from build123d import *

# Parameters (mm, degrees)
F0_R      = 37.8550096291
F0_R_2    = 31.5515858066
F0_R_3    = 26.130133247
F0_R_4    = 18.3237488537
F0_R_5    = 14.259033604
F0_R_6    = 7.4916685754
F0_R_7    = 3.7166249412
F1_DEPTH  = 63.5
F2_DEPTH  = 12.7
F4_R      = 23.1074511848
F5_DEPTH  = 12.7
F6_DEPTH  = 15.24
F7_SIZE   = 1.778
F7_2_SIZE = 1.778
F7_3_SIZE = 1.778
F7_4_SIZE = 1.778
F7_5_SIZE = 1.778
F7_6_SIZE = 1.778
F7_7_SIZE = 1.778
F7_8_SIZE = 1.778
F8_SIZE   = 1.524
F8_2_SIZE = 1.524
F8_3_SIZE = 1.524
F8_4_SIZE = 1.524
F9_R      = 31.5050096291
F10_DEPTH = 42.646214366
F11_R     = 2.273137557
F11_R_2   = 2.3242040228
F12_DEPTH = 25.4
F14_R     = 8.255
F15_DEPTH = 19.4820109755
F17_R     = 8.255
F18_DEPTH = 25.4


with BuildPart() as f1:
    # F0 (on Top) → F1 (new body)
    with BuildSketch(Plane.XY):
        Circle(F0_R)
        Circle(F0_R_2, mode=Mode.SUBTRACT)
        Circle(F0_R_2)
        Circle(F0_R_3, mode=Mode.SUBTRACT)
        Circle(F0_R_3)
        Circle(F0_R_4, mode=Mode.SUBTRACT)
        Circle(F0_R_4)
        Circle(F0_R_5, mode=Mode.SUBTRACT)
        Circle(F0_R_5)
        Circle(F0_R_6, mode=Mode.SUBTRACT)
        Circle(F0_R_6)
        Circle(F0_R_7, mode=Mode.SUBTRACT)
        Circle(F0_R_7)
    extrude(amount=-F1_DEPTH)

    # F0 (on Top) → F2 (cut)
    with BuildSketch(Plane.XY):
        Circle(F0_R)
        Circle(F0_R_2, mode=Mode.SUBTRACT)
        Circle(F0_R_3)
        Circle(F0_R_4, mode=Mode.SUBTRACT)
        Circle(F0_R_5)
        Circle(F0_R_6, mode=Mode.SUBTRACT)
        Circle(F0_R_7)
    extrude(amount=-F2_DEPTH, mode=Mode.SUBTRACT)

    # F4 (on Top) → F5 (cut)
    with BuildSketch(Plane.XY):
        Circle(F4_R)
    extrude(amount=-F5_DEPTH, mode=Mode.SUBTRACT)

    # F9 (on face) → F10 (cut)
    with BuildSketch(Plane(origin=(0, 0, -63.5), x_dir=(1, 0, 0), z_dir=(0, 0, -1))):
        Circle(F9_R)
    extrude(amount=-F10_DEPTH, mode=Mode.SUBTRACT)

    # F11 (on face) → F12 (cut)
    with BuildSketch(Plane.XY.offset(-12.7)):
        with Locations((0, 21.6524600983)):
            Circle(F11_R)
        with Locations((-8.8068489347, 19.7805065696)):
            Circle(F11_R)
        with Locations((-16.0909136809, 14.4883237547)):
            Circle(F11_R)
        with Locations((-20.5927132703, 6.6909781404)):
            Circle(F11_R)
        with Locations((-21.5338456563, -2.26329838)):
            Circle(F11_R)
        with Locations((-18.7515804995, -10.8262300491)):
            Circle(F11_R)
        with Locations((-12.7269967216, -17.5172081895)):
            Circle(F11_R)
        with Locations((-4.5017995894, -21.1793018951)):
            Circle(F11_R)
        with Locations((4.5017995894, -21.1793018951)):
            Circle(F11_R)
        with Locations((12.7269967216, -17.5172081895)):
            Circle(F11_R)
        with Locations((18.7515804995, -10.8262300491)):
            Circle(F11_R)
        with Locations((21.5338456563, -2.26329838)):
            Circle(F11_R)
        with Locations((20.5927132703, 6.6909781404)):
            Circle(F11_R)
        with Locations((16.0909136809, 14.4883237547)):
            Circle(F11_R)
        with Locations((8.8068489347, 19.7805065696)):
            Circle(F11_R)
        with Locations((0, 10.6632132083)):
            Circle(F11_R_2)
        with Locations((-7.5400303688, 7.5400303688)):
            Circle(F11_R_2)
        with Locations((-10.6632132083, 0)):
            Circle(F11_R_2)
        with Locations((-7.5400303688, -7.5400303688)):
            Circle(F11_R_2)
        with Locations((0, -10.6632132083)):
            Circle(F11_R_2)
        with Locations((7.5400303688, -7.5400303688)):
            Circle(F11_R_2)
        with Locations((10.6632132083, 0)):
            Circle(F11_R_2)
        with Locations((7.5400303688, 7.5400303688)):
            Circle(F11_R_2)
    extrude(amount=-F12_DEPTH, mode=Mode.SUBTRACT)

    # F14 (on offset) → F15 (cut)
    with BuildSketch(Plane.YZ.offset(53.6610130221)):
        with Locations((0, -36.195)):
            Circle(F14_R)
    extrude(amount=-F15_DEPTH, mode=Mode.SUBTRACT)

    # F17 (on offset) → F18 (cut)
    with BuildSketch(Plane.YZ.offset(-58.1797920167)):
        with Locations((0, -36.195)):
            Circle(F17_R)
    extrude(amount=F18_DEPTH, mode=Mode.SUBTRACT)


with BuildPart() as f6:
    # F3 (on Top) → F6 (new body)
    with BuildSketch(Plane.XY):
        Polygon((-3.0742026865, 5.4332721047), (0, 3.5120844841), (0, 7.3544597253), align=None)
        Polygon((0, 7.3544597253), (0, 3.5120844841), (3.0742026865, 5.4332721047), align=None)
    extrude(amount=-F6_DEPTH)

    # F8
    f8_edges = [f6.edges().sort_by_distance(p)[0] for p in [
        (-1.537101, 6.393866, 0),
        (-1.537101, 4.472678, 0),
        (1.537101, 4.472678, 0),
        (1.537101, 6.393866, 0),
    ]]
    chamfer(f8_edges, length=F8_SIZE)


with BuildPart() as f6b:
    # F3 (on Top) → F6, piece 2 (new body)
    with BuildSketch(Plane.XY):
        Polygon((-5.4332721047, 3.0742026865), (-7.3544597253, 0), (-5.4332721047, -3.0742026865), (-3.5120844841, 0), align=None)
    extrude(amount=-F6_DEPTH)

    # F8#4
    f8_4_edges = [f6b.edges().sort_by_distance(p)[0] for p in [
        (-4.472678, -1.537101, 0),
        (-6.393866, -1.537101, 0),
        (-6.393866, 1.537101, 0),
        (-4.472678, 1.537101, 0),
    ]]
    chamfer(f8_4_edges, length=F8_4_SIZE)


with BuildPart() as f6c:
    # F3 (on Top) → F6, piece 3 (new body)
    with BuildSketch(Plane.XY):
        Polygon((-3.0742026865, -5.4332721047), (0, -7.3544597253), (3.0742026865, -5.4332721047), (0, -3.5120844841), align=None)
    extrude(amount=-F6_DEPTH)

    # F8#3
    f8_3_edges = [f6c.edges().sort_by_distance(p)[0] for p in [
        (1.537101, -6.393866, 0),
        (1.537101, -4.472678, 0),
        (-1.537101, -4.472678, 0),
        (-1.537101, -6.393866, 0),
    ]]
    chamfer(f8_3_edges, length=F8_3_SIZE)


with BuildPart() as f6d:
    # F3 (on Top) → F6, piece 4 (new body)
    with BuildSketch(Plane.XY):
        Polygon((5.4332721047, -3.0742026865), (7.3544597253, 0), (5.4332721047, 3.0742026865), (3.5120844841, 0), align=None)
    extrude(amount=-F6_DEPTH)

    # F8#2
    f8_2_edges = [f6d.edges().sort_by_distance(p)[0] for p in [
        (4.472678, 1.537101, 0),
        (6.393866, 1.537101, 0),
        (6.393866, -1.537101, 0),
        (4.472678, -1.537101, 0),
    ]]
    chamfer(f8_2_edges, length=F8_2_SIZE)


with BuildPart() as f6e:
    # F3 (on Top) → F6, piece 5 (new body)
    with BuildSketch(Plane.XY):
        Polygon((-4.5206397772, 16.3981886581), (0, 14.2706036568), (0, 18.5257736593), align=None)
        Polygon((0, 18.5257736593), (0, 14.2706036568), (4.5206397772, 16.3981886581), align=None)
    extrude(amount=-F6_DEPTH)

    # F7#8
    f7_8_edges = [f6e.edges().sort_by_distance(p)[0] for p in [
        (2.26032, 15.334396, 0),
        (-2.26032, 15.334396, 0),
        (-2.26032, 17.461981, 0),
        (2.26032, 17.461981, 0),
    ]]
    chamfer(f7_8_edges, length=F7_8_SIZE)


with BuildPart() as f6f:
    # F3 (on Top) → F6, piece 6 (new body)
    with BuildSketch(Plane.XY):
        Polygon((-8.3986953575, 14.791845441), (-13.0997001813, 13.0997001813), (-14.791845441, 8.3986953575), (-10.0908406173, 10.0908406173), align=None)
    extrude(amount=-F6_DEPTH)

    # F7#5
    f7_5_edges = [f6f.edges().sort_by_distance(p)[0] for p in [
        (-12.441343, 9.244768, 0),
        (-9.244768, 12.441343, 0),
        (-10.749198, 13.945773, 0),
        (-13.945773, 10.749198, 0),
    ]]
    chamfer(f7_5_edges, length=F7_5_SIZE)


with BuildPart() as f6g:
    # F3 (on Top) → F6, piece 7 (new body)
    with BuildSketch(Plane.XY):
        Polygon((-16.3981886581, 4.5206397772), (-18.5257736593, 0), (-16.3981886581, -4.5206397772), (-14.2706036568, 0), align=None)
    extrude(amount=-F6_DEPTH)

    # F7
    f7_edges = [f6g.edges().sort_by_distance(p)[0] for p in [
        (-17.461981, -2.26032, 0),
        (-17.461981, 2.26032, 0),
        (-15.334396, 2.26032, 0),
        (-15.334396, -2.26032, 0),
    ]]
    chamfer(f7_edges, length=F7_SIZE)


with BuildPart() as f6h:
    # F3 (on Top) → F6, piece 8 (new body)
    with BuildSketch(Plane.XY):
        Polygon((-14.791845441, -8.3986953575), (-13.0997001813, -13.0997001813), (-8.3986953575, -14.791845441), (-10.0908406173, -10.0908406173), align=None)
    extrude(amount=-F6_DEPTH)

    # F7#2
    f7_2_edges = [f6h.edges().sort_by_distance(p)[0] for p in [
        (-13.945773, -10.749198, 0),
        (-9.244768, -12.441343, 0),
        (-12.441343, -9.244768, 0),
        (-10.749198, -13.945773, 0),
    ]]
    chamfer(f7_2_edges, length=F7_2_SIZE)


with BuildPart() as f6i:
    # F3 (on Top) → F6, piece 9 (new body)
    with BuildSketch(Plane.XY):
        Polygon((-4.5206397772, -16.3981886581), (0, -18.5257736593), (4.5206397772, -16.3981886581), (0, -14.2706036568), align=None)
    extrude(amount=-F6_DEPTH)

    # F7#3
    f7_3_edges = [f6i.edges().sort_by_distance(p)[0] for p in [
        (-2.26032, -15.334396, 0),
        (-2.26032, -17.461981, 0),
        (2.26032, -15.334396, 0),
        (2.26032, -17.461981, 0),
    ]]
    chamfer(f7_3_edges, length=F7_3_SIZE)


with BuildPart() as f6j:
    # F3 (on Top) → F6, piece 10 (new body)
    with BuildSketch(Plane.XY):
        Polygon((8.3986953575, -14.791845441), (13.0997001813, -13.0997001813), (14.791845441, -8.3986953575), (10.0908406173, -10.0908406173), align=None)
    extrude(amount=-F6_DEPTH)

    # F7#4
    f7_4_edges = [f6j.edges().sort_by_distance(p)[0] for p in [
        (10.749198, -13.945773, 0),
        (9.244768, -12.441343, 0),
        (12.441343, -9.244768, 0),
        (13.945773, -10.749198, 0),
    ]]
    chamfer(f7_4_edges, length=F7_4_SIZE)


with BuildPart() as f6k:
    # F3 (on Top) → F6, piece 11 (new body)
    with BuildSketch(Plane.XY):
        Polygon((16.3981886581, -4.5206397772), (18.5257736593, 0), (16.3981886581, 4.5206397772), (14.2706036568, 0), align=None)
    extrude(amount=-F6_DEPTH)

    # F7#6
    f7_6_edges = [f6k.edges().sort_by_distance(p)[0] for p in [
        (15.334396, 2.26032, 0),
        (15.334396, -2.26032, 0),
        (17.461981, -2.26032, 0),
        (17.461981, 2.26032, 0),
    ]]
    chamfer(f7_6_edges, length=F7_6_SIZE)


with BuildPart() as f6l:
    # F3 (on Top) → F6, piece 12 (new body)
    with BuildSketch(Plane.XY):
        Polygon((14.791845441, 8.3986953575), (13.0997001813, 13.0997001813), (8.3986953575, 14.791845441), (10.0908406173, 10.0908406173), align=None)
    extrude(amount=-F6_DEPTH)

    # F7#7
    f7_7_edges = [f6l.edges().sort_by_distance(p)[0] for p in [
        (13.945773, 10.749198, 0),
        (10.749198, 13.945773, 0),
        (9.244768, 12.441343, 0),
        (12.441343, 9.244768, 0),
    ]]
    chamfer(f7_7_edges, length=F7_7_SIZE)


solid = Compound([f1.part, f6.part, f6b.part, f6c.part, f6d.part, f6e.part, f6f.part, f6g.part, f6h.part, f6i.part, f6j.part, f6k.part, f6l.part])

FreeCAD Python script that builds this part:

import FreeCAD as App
import Part
import Sketcher
Q = App.Units.Quantity


def edges_at(feature, points):
    """Names of the edges that pass closest to the given points."""
    edges = feature.Shape.Edges
    near = lambda p: min(range(len(edges)), key=lambda i: edges[i].distToShape(Part.Vertex(*p))[0])
    return sorted({f"Edge{near(p) + 1}" for p in points})

doc = App.newDocument("Part")
body = doc.addObject("PartDesign::Body", "Body")

sketch1 = body.newObject("Sketcher::SketchObject", "Sketch")
sketch1.AttachmentSupport = (doc.getObject("XY_Plane"), [""])
sketch1.MapMode = "FlatFace"
sketch1.addGeometry(Part.Circle(App.Vector(0, 0, 0), App.Vector(0, 0, 1), 37.85501), False)
sketch1.addConstraint([
    Sketcher.Constraint("Coincident", 0, 3, -1, 1),
    Sketcher.Constraint("Diameter", 0, Q("75.710019 mm")),
])
pad1 = body.newObject("PartDesign::Pad", "Pad")
pad1.Profile = sketch1
pad1.Length = Q("2.5 in")
pad1.Reversed = True

sketch2 = body.newObject("Sketcher::SketchObject", "Sketch001")
sketch2.AttachmentSupport = (doc.getObject("XY_Plane"), [""])
sketch2.MapMode = "FlatFace"
sketch2.addGeometry([
    Part.Circle(App.Vector(0, 0, 0), App.Vector(0, 0, 1), 37.85501),
    Part.Circle(App.Vector(0, 0, 0), App.Vector(0, 0, 1), 31.551586),
    Part.Circle(App.Vector(0, 0, 0), App.Vector(0, 0, 1), 26.130133),
    Part.Circle(App.Vector(0, 0, 0), App.Vector(0, 0, 1), 18.323749),
    Part.Circle(App.Vector(0, 0, 0), App.Vector(0, 0, 1), 14.259034),
    Part.Circle(App.Vector(0, 0, 0), App.Vector(0, 0, 1), 7.491669),
    Part.Circle(App.Vector(0, 0, 0), App.Vector(0, 0, 1), 3.716625),
], False)
sketch2.addConstraint([
    Sketcher.Constraint("Coincident", 0, 3, -1, 1),
    Sketcher.Constraint("Coincident", 1, 3, -1, 1),
    Sketcher.Constraint("Coincident", 2, 3, -1, 1),
    Sketcher.Constraint("Coincident", 3, 3, -1, 1),
    Sketcher.Constraint("Coincident", 4, 3, -1, 1),
    Sketcher.Constraint("Coincident", 5, 3, -1, 1),
    Sketcher.Constraint("Coincident", 6, 3, -1, 1),
    Sketcher.Constraint("Diameter", 0, Q("75.710019 mm")),
    Sketcher.Constraint("Diameter", 1, Q("63.103172 mm")),
    Sketcher.Constraint("Diameter", 6, Q("7.43325 mm")),
    Sketcher.Constraint("Diameter", 2, Q("52.260266 mm")),
    Sketcher.Constraint("Diameter", 3, Q("36.647498 mm")),
    Sketcher.Constraint("Diameter", 4, Q("28.518067 mm")),
    Sketcher.Constraint("Diameter", 5, Q("14.983337 mm")),
])
pocket1 = body.newObject("PartDesign::Pocket", "Pocket")
pocket1.Profile = sketch2
pocket1.Length = Q("0.5 in")

sketch3 = body.newObject("Sketcher::SketchObject", "Sketch002")
sketch3.AttachmentSupport = (doc.getObject("XY_Plane"), [""])
sketch3.MapMode = "FlatFace"
sketch3.addGeometry(Part.Circle(App.Vector(0, 0, 0), App.Vector(0, 0, 1), 23.107451), False)
sketch3.addConstraint([
    Sketcher.Constraint("Coincident", 0, 3, -1, 1),
    Sketcher.Constraint("Diameter", 0, Q("46.214902 mm")),
])
pocket2 = body.newObject("PartDesign::Pocket", "Pocket001")
pocket2.Profile = sketch3
pocket2.Length = Q("0.5 in")

sketch4 = body.newObject("Sketcher::SketchObject", "Sketch003")
sketch4.AttachmentSupport = (doc.getObject("XY_Plane"), [""])
sketch4.MapMode = "FlatFace"
sketch4.AttachmentOffset = App.Placement(App.Vector(0, 0, -2.5 * 25.4), App.Rotation())
sketch4.addGeometry(Part.Circle(App.Vector(0, 0, 0), App.Vector(0, 0, 1), 31.50501), False)
sketch4.addConstraint([
    Sketcher.Constraint("Coincident", 0, 3, -1, 1),
    Sketcher.Constraint("Diameter", 0, Q("63.010019 mm")),
])
pocket3 = body.newObject("PartDesign::Pocket", "Pocket002")
pocket3.Profile = sketch4
pocket3.Length = 42.646214
pocket3.Reversed = True

sketch5 = body.newObject("Sketcher::SketchObject", "Sketch004")
sketch5.AttachmentSupport = (doc.getObject("XY_Plane"), [""])
sketch5.MapMode = "FlatFace"
sketch5.AttachmentOffset = App.Placement(App.Vector(0, 0, -0.5 * 25.4), App.Rotation())
sketch5.addGeometry([
    Part.Circle(App.Vector(0, 21.65246, 0), App.Vector(0, 0, 1), 2.273138),
    Part.Circle(App.Vector(-8.806849, 19.780507, 0), App.Vector(0, 0, 1), 2.273138),
    Part.Circle(App.Vector(-16.090914, 14.488324, 0), App.Vector(0, 0, 1), 2.273138),
    Part.Circle(App.Vector(-20.592713, 6.690978, 0), App.Vector(0, 0, 1), 2.273138),
    Part.Circle(App.Vector(-21.533846, -2.263298, 0), App.Vector(0, 0, 1), 2.273138),
    Part.Circle(App.Vector(-18.75158, -10.82623, 0), App.Vector(0, 0, 1), 2.273138),
    Part.Circle(App.Vector(-12.726997, -17.517208, 0), App.Vector(0, 0, 1), 2.273138),
    Part.Circle(App.Vector(-4.5018, -21.179302, 0), App.Vector(0, 0, 1), 2.273138),
    Part.Circle(App.Vector(4.5018, -21.179302, 0), App.Vector(0, 0, 1), 2.273138),
    Part.Circle(App.Vector(12.726997, -17.517208, 0), App.Vector(0, 0, 1), 2.273138),
    Part.Circle(App.Vector(18.75158, -10.82623, 0), App.Vector(0, 0, 1), 2.273138),
    Part.Circle(App.Vector(21.533846, -2.263298, 0), App.Vector(0, 0, 1), 2.273138),
    Part.Circle(App.Vector(20.592713, 6.690978, 0), App.Vector(0, 0, 1), 2.273138),
    Part.Circle(App.Vector(16.090914, 14.488324, 0), App.Vector(0, 0, 1), 2.273138),
    Part.Circle(App.Vector(8.806849, 19.780507, 0), App.Vector(0, 0, 1), 2.273138),
    Part.Circle(App.Vector(0, 10.663213, 0), App.Vector(0, 0, 1), 2.324204),
    Part.Circle(App.Vector(-7.54003, 7.54003, 0), App.Vector(0, 0, 1), 2.324204),
    Part.Circle(App.Vector(-10.663213, 0, 0), App.Vector(0, 0, 1), 2.324204),
    Part.Circle(App.Vector(-7.54003, -7.54003, 0), App.Vector(0, 0, 1), 2.324204),
    Part.Circle(App.Vector(0, -10.663213, 0), App.Vector(0, 0, 1), 2.324204),
    Part.Circle(App.Vector(7.54003, -7.54003, 0), App.Vector(0, 0, 1), 2.324204),
    Part.Circle(App.Vector(10.663213, 0, 0), App.Vector(0, 0, 1), 2.324204),
    Part.Circle(App.Vector(7.54003, 7.54003, 0), App.Vector(0, 0, 1), 2.324204),
], False)
sketch5.addConstraint([
    Sketcher.Constraint("Equal", 0, 1),
    Sketcher.Constraint("Equal", 1, 2),
    Sketcher.Constraint("Equal", 2, 3),
    Sketcher.Constraint("Equal", 3, 4),
    Sketcher.Constraint("Equal", 4, 5),
    Sketcher.Constraint("Equal", 5, 6),
    Sketcher.Constraint("Equal", 6, 7),
    Sketcher.Constraint("Equal", 7, 8),
    Sketcher.Constraint("Equal", 8, 9),
    Sketcher.Constraint("Equal", 9, 10),
    Sketcher.Constraint("Equal", 10, 11),
    Sketcher.Constraint("Equal", 11, 12),
    Sketcher.Constraint("Equal", 12, 13),
    Sketcher.Constraint("Equal", 13, 14),
    Sketcher.Constraint("Equal", 15, 16),
    Sketcher.Constraint("Equal", 16, 17),
    Sketcher.Constraint("Equal", 17, 18),
    Sketcher.Constraint("Equal", 18, 19),
    Sketcher.Constraint("Equal", 19, 20),
    Sketcher.Constraint("Equal", 20, 21),
    Sketcher.Constraint("Equal", 21, 22),
    Sketcher.Constraint("Symmetric", 15, 3, 19, 3, -1, 1),
    Sketcher.Constraint("Symmetric", 16, 3, 20, 3, -1, 1),
    Sketcher.Constraint("Symmetric", 17, 3, 21, 3, -1, 1),
    Sketcher.Constraint("Symmetric", 18, 3, 22, 3, -1, 1),
    Sketcher.Constraint("Symmetric", 7, 3, 8, 3, -2),
    Sketcher.Constraint("Symmetric", 6, 3, 9, 3, -2),
    Sketcher.Constraint("Symmetric", 5, 3, 10, 3, -2),
    Sketcher.Constraint("Symmetric", 4, 3, 11, 3, -2),
    Sketcher.Constraint("Symmetric", 3, 3, 12, 3, -2),
    Sketcher.Constraint("Symmetric", 2, 3, 13, 3, -2),
    Sketcher.Constraint("Symmetric", 1, 3, 14, 3, -2),
    Sketcher.Constraint("Symmetric", 18, 3, 20, 3, -2),
    Sketcher.Constraint("PointOnObject", 0, 3, -2),
    Sketcher.Constraint("PointOnObject", 15, 3, -2),
    Sketcher.Constraint("PointOnObject", 17, 3, -1),
    Sketcher.Constraint("Diameter", 15, Q("4.648408 mm")),
    Sketcher.Constraint("Diameter", 0, Q("4.546275 mm")),
    Sketcher.Constraint("DistanceY", 4, 3, -1, 1, Q("2.263298 mm")),
    Sketcher.Constraint("DistanceX", 7, 3, -1, 1, Q("4.5018 mm")),
    Sketcher.Constraint("DistanceY", 7, 3, -1, 1, Q("21.179302 mm")),
    Sketcher.Constraint("DistanceX", 3, 3, 2, 3, Q("4.5018 mm")),
    Sketcher.Constraint("DistanceX", 3, 3, 17, 3, Q("9.9295 mm")),
    Sketcher.Constraint("DistanceY", 5, 3, 18, 3, Q("3.2862 mm")),
    Sketcher.Constraint("DistanceY", -1, 1, 0, 3, Q("21.65246 mm")),
    Sketcher.Constraint("DistanceX", 1, 3, -1, 1, Q("8.806849 mm")),
    Sketcher.Constraint("DistanceY", -1, 1, 3, 3, Q("6.690978 mm")),
    Sketcher.Constraint("DistanceX", 5, 3, -1, 1, Q("18.75158 mm")),
    Sketcher.Constraint("DistanceY", 5, 3, -1, 1, Q("10.82623 mm")),
    Sketcher.Constraint("DistanceY", 6, 3, -1, 1, Q("17.517208 mm")),
    Sketcher.Constraint("DistanceX", 16, 3, -1, 1, Q("7.54003 mm")),
    Sketcher.Constraint("DistanceY", 3, 3, 1, 3, Q("13.089528 mm")),
    Sketcher.Constraint("DistanceX", 4, 3, 2, 3, Q("5.442932 mm")),
    Sketcher.Constraint("DistanceX", 4, 3, 6, 3, Q("8.806849 mm")),
    Sketcher.Constraint("DistanceY", 6, 3, 2, 3, Q("32.005532 mm")),
    Sketcher.Constraint("DistanceY", 15, 3, 2, 3, Q("3.825111 mm")),
    Sketcher.Constraint("DistanceX", 2, 3, -1, 1, Q("16.090914 mm")),
])
pocket4 = body.newObject("PartDesign::Pocket", "Pocket003")
pocket4.Profile = sketch5
pocket4.Length = Q("1 in")

sketch6 = body.newObject("Sketcher::SketchObject", "Sketch005")
sketch6.AttachmentSupport = (doc.getObject("YZ_Plane"), [""])
sketch6.MapMode = "FlatFace"
sketch6.AttachmentOffset = App.Placement(App.Vector(0, 0, 53.661013), App.Rotation())
sketch6.addGeometry(Part.Circle(App.Vector(0, -36.195, 0), App.Vector(0, 0, 1), 8.255), False)
sketch6.addConstraint([
    Sketcher.Constraint("PointOnObject", 0, 3, -2),
    Sketcher.Constraint("Diameter", 0, Q("0.65 in")),
    Sketcher.Constraint("DistanceY", 0, 3, -1, 1, Q("1.425 in")),
])
pocket5 = body.newObject("PartDesign::Pocket", "Pocket004")
pocket5.Profile = sketch6
pocket5.Length = 19.482011

sketch7 = body.newObject("Sketcher::SketchObject", "Sketch006")
sketch7.AttachmentSupport = (doc.getObject("YZ_Plane"), [""])
sketch7.MapMode = "FlatFace"
sketch7.AttachmentOffset = App.Placement(App.Vector(0, 0, -58.179792), App.Rotation())
sketch7.addGeometry(Part.Circle(App.Vector(0, -36.195, 0), App.Vector(0, 0, 1), 8.255), False)
sketch7.addConstraint([
    Sketcher.Constraint("PointOnObject", 0, 3, -2),
    Sketcher.Constraint("Diameter", 0, Q("0.65 in")),
    Sketcher.Constraint("DistanceY", 0, 3, -1, 1, Q("1.425 in")),
])
pocket6 = body.newObject("PartDesign::Pocket", "Pocket005")
pocket6.Profile = sketch7
pocket6.Length = Q("1 in")
pocket6.Reversed = True
body2 = doc.addObject("PartDesign::Body", "Body001")

sketch8 = body2.newObject("Sketcher::SketchObject", "Sketch007")
sketch8.AttachmentSupport = (doc.getObject("XY_Plane001"), [""])
sketch8.MapMode = "FlatFace"
sketch8.addGeometry([
    Part.LineSegment(App.Vector(-3.074203, 5.433272, 0), App.Vector(0, 3.512084, 0)),
    Part.LineSegment(App.Vector(0, 3.512084, 0), App.Vector(3.074203, 5.433272, 0)),
    Part.LineSegment(App.Vector(3.074203, 5.433272, 0), App.Vector(0, 7.35446, 0)),
    Part.LineSegment(App.Vector(0, 7.35446, 0), App.Vector(-3.074203, 5.433272, 0)),
], False)
sketch8.addConstraint([
    Sketcher.Constraint("Coincident", 0, 2, 1, 1),
    Sketcher.Constraint("Coincident", 1, 2, 2, 1),
    Sketcher.Constraint("Coincident", 2, 2, 3, 1),
    Sketcher.Constraint("Coincident", 3, 2, 0, 1),
    Sketcher.Constraint("Symmetric", 1, 2, 3, 2, -2),
    Sketcher.Constraint("PointOnObject", 0, 2, -2),
    Sketcher.Constraint("PointOnObject", 2, 2, -2),
    Sketcher.Constraint("Parallel", 0, 2),
    Sketcher.Constraint("DistanceY", -1, 1, 2, 2, Q("7.35446 mm")),
    Sketcher.Constraint("Distance", 0, Q("3.625146 mm")),
    Sketcher.Constraint("DistanceY", -1, 1, 0, 2, Q("3.512084 mm")),
])
pad2 = body2.newObject("PartDesign::Pad", "Pad001")
pad2.Profile = sketch8
pad2.Length = Q("0.6 in")
pad2.Reversed = True
doc.recompute()

chamfer = body2.newObject("PartDesign::Chamfer", "Chamfer")
chamfer.Base = (pad2, edges_at(pad2, [
    (-1.537, 6.394, 0),
    (-1.537, 4.473, 0),
    (1.537, 4.473, 0),
    (1.537, 6.394, 0),
]))
chamfer.Size = Q("0.06 in")
body3 = doc.addObject("PartDesign::Body", "Body002")

sketch9 = body3.newObject("Sketcher::SketchObject", "Sketch008")
sketch9.AttachmentSupport = (doc.getObject("XY_Plane002"), [""])
sketch9.MapMode = "FlatFace"
sketch9.addGeometry([
    Part.LineSegment(App.Vector(-5.433272, 3.074203, 0), App.Vector(-7.35446, 0, 0)),
    Part.LineSegment(App.Vector(-7.35446, 0, 0), App.Vector(-5.433272, -3.074203, 0)),
    Part.LineSegment(App.Vector(-5.433272, -3.074203, 0), App.Vector(-3.512084, 0, 0)),
    Part.LineSegment(App.Vector(-3.512084, 0, 0), App.Vector(-5.433272, 3.074203, 0)),
], False)
sketch9.addConstraint([
    Sketcher.Constraint("Coincident", 0, 2, 1, 1),
    Sketcher.Constraint("Coincident", 1, 2, 2, 1),
    Sketcher.Constraint("Coincident", 2, 2, 3, 1),
    Sketcher.Constraint("Coincident", 3, 2, 0, 1),
    Sketcher.Constraint("Symmetric", 1, 2, 3, 2, -1),
    Sketcher.Constraint("PointOnObject", 0, 2, -1),
    Sketcher.Constraint("PointOnObject", 2, 2, -1),
    Sketcher.Constraint("Parallel", 0, 2),
    Sketcher.Constraint("DistanceX", 0, 2, -1, 1, Q("7.35446 mm")),
    Sketcher.Constraint("Distance", 0, Q("3.625146 mm")),
    Sketcher.Constraint("DistanceX", 1, 2, -1, 1, Q("5.433272 mm")),
])
pad3 = body3.newObject("PartDesign::Pad", "Pad002")
pad3.Profile = sketch9
pad3.Length = Q("0.6 in")
pad3.Reversed = True
doc.recompute()

chamfer2 = body3.newObject("PartDesign::Chamfer", "Chamfer001")
chamfer2.Base = (pad3, edges_at(pad3, [
    (-4.473, -1.537, 0),
    (-6.394, -1.537, 0),
    (-6.394, 1.537, 0),
    (-4.473, 1.537, 0),
]))
chamfer2.Size = Q("0.06 in")
body4 = doc.addObject("PartDesign::Body", "Body003")

sketch10 = body4.newObject("Sketcher::SketchObject", "Sketch009")
sketch10.AttachmentSupport = (doc.getObject("XY_Plane003"), [""])
sketch10.MapMode = "FlatFace"
sketch10.addGeometry([
    Part.LineSegment(App.Vector(-3.074203, -5.433272, 0), App.Vector(0, -7.35446, 0)),
    Part.LineSegment(App.Vector(0, -7.35446, 0), App.Vector(3.074203, -5.433272, 0)),
    Part.LineSegment(App.Vector(3.074203, -5.433272, 0), App.Vector(0, -3.512084, 0)),
    Part.LineSegment(App.Vector(0, -3.512084, 0), App.Vector(-3.074203, -5.433272, 0)),
], False)
sketch10.addConstraint([
    Sketcher.Constraint("Coincident", 0, 2, 1, 1),
    Sketcher.Constraint("Coincident", 1, 2, 2, 1),
    Sketcher.Constraint("Coincident", 2, 2, 3, 1),
    Sketcher.Constraint("Coincident", 3, 2, 0, 1),
    Sketcher.Constraint("Symmetric", 1, 2, 3, 2, -2),
    Sketcher.Constraint("PointOnObject", 0, 2, -2),
    Sketcher.Constraint("PointOnObject", 2, 2, -2),
    Sketcher.Constraint("Parallel", 0, 2),
    Sketcher.Constraint("DistanceY", 0, 2, -1, 1, Q("7.35446 mm")),
    Sketcher.Constraint("Distance", 0, Q("3.625146 mm")),
    Sketcher.Constraint("DistanceX", -1, 1, 1, 2, Q("3.074203 mm")),
])
pad4 = body4.newObject("PartDesign::Pad", "Pad003")
pad4.Profile = sketch10
pad4.Length = Q("0.6 in")
pad4.Reversed = True
doc.recompute()

chamfer3 = body4.newObject("PartDesign::Chamfer", "Chamfer002")
chamfer3.Base = (pad4, edges_at(pad4, [
    (1.537, -6.394, 0),
    (1.537, -4.473, 0),
    (-1.537, -4.473, 0),
    (-1.537, -6.394, 0),
]))
chamfer3.Size = Q("0.06 in")
body5 = doc.addObject("PartDesign::Body", "Body004")

sketch11 = body5.newObject("Sketcher::SketchObject", "Sketch010")
sketch11.AttachmentSupport = (doc.getObject("XY_Plane004"), [""])
sketch11.MapMode = "FlatFace"
sketch11.addGeometry([
    Part.LineSegment(App.Vector(5.433272, -3.074203, 0), App.Vector(7.35446, 0, 0)),
    Part.LineSegment(App.Vector(7.35446, 0, 0), App.Vector(5.433272, 3.074203, 0)),
    Part.LineSegment(App.Vector(5.433272, 3.074203, 0), App.Vector(3.512084, 0, 0)),
    Part.LineSegment(App.Vector(3.512084, 0, 0), App.Vector(5.433272, -3.074203, 0)),
], False)
sketch11.addConstraint([
    Sketcher.Constraint("Coincident", 0, 2, 1, 1),
    Sketcher.Constraint("Coincident", 1, 2, 2, 1),
    Sketcher.Constraint("Coincident", 2, 2, 3, 1),
    Sketcher.Constraint("Coincident", 3, 2, 0, 1),
    Sketcher.Constraint("Symmetric", 1, 2, 3, 2, -1),
    Sketcher.Constraint("PointOnObject", 0, 2, -1),
    Sketcher.Constraint("PointOnObject", 2, 2, -1),
    Sketcher.Constraint("Parallel", 0, 2),
    Sketcher.Constraint("DistanceX", -1, 1, 0, 2, Q("7.35446 mm")),
    Sketcher.Constraint("Distance", 0, Q("3.625146 mm")),
    Sketcher.Constraint("DistanceX", -1, 1, 1, 2, Q("5.433272 mm")),
])
pad5 = body5.newObject("PartDesign::Pad", "Pad004")
pad5.Profile = sketch11
pad5.Length = Q("0.6 in")
pad5.Reversed = True
doc.recompute()

chamfer4 = body5.newObject("PartDesign::Chamfer", "Chamfer003")
chamfer4.Base = (pad5, edges_at(pad5, [
    (4.473, 1.537, 0),
    (6.394, 1.537, 0),
    (6.394, -1.537, 0),
    (4.473, -1.537, 0),
]))
chamfer4.Size = Q("0.06 in")
body6 = doc.addObject("PartDesign::Body", "Body005")

sketch12 = body6.newObject("Sketcher::SketchObject", "Sketch011")
sketch12.AttachmentSupport = (doc.getObject("XY_Plane005"), [""])
sketch12.MapMode = "FlatFace"
sketch12.addGeometry([
    Part.LineSegment(App.Vector(-4.52064, 16.398189, 0), App.Vector(0, 14.270604, 0)),
    Part.LineSegment(App.Vector(0, 14.270604, 0), App.Vector(4.52064, 16.398189, 0)),
    Part.LineSegment(App.Vector(4.52064, 16.398189, 0), App.Vector(0, 18.525774, 0)),
    Part.LineSegment(App.Vector(0, 18.525774, 0), App.Vector(-4.52064, 16.398189, 0)),
], False)
sketch12.addConstraint([
    Sketcher.Constraint("Coincident", 0, 2, 1, 1),
    Sketcher.Constraint("Coincident", 1, 2, 2, 1),
    Sketcher.Constraint("Coincident", 2, 2, 3, 1),
    Sketcher.Constraint("Coincident", 3, 2, 0, 1),
    Sketcher.Constraint("Symmetric", 1, 2, 3, 2, -2),
    Sketcher.Constraint("PointOnObject", 0, 2, -2),
    Sketcher.Constraint("PointOnObject", 2, 2, -2),
    Sketcher.Constraint("Parallel", 0, 2),
    Sketcher.Constraint("Distance", 0, Q("4.996279 mm")),
    Sketcher.Constraint("DistanceX", -1, 1, 1, 2, Q("4.52064 mm")),
    Sketcher.Constraint("DistanceY", -1, 1, 1, 2, Q("16.398189 mm")),
])
pad6 = body6.newObject("PartDesign::Pad", "Pad005")
pad6.Profile = sketch12
pad6.Length = Q("0.6 in")
pad6.Reversed = True
doc.recompute()

chamfer5 = body6.newObject("PartDesign::Chamfer", "Chamfer004")
chamfer5.Base = (pad6, edges_at(pad6, [
    (2.26, 15.334, 0),
    (-2.26, 15.334, 0),
    (-2.26, 17.462, 0),
    (2.26, 17.462, 0),
]))
chamfer5.Size = Q("0.07 in")
body7 = doc.addObject("PartDesign::Body", "Body006")

sketch13 = body7.newObject("Sketcher::SketchObject", "Sketch012")
sketch13.AttachmentSupport = (doc.getObject("XY_Plane006"), [""])
sketch13.MapMode = "FlatFace"
sketch13.addGeometry([
    Part.LineSegment(App.Vector(-8.398695, 14.791845, 0), App.Vector(-13.0997, 13.0997, 0)),
    Part.LineSegment(App.Vector(-13.0997, 13.0997, 0), App.Vector(-14.791845, 8.398695, 0)),
    Part.LineSegment(App.Vector(-14.791845, 8.398695, 0), App.Vector(-10.090841, 10.090841, 0)),
    Part.LineSegment(App.Vector(-10.090841, 10.090841, 0), App.Vector(-8.398695, 14.791845, 0)),
], False)
sketch13.addConstraint([
    Sketcher.Constraint("Coincident", 0, 2, 1, 1),
    Sketcher.Constraint("Coincident", 1, 2, 2, 1),
    Sketcher.Constraint("Coincident", 2, 2, 3, 1),
    Sketcher.Constraint("Coincident", 3, 2, 0, 1),
    Sketcher.Constraint("Parallel", 0, 2),
    Sketcher.Constraint("Parallel", 1, 3),
    Sketcher.Constraint("Equal", 0, 1),
    Sketcher.Constraint("DistanceX", 0, 2, -1, 1, Q("13.0997 mm")),
    Sketcher.Constraint("DistanceY", -1, 1, 0, 2, Q("13.0997 mm")),
    Sketcher.Constraint("Distance", 0, Q("4.996279 mm")),
    Sketcher.Constraint("DistanceX", 2, 2, -1, 1, Q("10.090841 mm")),
    Sketcher.Constraint("DistanceY", -1, 1, 2, 2, Q("10.090841 mm")),
])
pad7 = body7.newObject("PartDesign::Pad", "Pad006")
pad7.Profile = sketch13
pad7.Length = Q("0.6 in")
pad7.Reversed = True
doc.recompute()

chamfer6 = body7.newObject("PartDesign::Chamfer", "Chamfer005")
chamfer6.Base = (pad7, edges_at(pad7, [
    (-12.441, 9.245, 0),
    (-9.245, 12.441, 0),
    (-10.749, 13.946, 0),
    (-13.946, 10.749, 0),
]))
chamfer6.Size = Q("0.07 in")
body8 = doc.addObject("PartDesign::Body", "Body007")

sketch14 = body8.newObject("Sketcher::SketchObject", "Sketch013")
sketch14.AttachmentSupport = (doc.getObject("XY_Plane007"), [""])
sketch14.MapMode = "FlatFace"
sketch14.addGeometry([
    Part.LineSegment(App.Vector(-16.398189, 4.52064, 0), App.Vector(-18.525774, 0, 0)),
    Part.LineSegment(App.Vector(-18.525774, 0, 0), App.Vector(-16.398189, -4.52064, 0)),
    Part.LineSegment(App.Vector(-16.398189, -4.52064, 0), App.Vector(-14.270604, 0, 0)),
    Part.LineSegment(App.Vector(-14.270604, 0, 0), App.Vector(-16.398189, 4.52064, 0)),
], False)
sketch14.addConstraint([
    Sketcher.Constraint("Coincident", 0, 2, 1, 1),
    Sketcher.Constraint("Coincident", 1, 2, 2, 1),
    Sketcher.Constraint("Coincident", 2, 2, 3, 1),
    Sketcher.Constraint("Coincident", 3, 2, 0, 1),
    Sketcher.Constraint("Symmetric", 1, 2, 3, 2, -1),
    Sketcher.Constraint("PointOnObject", 0, 2, -1),
    Sketcher.Constraint("PointOnObject", 2, 2, -1),
    Sketcher.Constraint("Parallel", 0, 2),
    Sketcher.Constraint("Distance", 0, Q("4.996279 mm")),
    Sketcher.Constraint("DistanceX", 1, 2, -1, 1, Q("16.398189 mm")),
    Sketcher.Constraint("DistanceY", 1, 2, -1, 1, Q("4.52064 mm")),
])
pad8 = body8.newObject("PartDesign::Pad", "Pad007")
pad8.Profile = sketch14
pad8.Length = Q("0.6 in")
pad8.Reversed = True
doc.recompute()

chamfer7 = body8.newObject("PartDesign::Chamfer", "Chamfer006")
chamfer7.Base = (pad8, edges_at(pad8, [
    (-17.462, -2.26, 0),
    (-17.462, 2.26, 0),
    (-15.334, 2.26, 0),
    (-15.334, -2.26, 0),
]))
chamfer7.Size = Q("0.07 in")
body9 = doc.addObject("PartDesign::Body", "Body008")

sketch15 = body9.newObject("Sketcher::SketchObject", "Sketch014")
sketch15.AttachmentSupport = (doc.getObject("XY_Plane008"), [""])
sketch15.MapMode = "FlatFace"
sketch15.addGeometry([
    Part.LineSegment(App.Vector(-14.791845, -8.398695, 0), App.Vector(-13.0997, -13.0997, 0)),
    Part.LineSegment(App.Vector(-13.0997, -13.0997, 0), App.Vector(-8.398695, -14.791845, 0)),
    Part.LineSegment(App.Vector(-8.398695, -14.791845, 0), App.Vector(-10.090841, -10.090841, 0)),
    Part.LineSegment(App.Vector(-10.090841, -10.090841, 0), App.Vector(-14.791845, -8.398695, 0)),
], False)
sketch15.addConstraint([
    Sketcher.Constraint("Coincident", 0, 2, 1, 1),
    Sketcher.Constraint("Coincident", 1, 2, 2, 1),
    Sketcher.Constraint("Coincident", 2, 2, 3, 1),
    Sketcher.Constraint("Coincident", 3, 2, 0, 1),
    Sketcher.Constraint("Parallel", 0, 2),
    Sketcher.Constraint("Parallel", 1, 3),
    Sketcher.Constraint("Equal", 0, 1),
    Sketcher.Constraint("DistanceX", 0, 2, -1, 1, Q("13.0997 mm")),
    Sketcher.Constraint("DistanceY", 0, 2, -1, 1, Q("13.0997 mm")),
    Sketcher.Constraint("Distance", 0, Q("4.996279 mm")),
    Sketcher.Constraint("DistanceX", 2, 2, -1, 1, Q("10.090841 mm")),
    Sketcher.Constraint("DistanceY", 2, 2, -1, 1, Q("10.090841 mm")),
])
pad9 = body9.newObject("PartDesign::Pad", "Pad008")
pad9.Profile = sketch15
pad9.Length = Q("0.6 in")
pad9.Reversed = True
doc.recompute()

chamfer8 = body9.newObject("PartDesign::Chamfer", "Chamfer007")
chamfer8.Base = (pad9, edges_at(pad9, [
    (-13.946, -10.749, 0),
    (-9.245, -12.441, 0),
    (-12.441, -9.245, 0),
    (-10.749, -13.946, 0),
]))
chamfer8.Size = Q("0.07 in")
body10 = doc.addObject("PartDesign::Body", "Body009")

sketch16 = body10.newObject("Sketcher::SketchObject", "Sketch015")
sketch16.AttachmentSupport = (doc.getObject("XY_Plane009"), [""])
sketch16.MapMode = "FlatFace"
sketch16.addGeometry([
    Part.LineSegment(App.Vector(-4.52064, -16.398189, 0), App.Vector(0, -18.525774, 0)),
    Part.LineSegment(App.Vector(0, -18.525774, 0), App.Vector(4.52064, -16.398189, 0)),
    Part.LineSegment(App.Vector(4.52064, -16.398189, 0), App.Vector(0, -14.270604, 0)),
    Part.LineSegment(App.Vector(0, -14.270604, 0), App.Vector(-4.52064, -16.398189, 0)),
], False)
sketch16.addConstraint([
    Sketcher.Constraint("Coincident", 0, 2, 1, 1),
    Sketcher.Constraint("Coincident", 1, 2, 2, 1),
    Sketcher.Constraint("Coincident", 2, 2, 3, 1),
    Sketcher.Constraint("Coincident", 3, 2, 0, 1),
    Sketcher.Constraint("Symmetric", 1, 2, 3, 2, -2),
    Sketcher.Constraint("PointOnObject", 0, 2, -2),
    Sketcher.Constraint("PointOnObject", 2, 2, -2),
    Sketcher.Constraint("Parallel", 0, 2),
    Sketcher.Constraint("Distance", 0, Q("4.996279 mm")),
    Sketcher.Constraint("DistanceX", -1, 1, 1, 2, Q("4.52064 mm")),
    Sketcher.Constraint("DistanceY", 1, 2, -1, 1, Q("16.398189 mm")),
])
pad10 = body10.newObject("PartDesign::Pad", "Pad009")
pad10.Profile = sketch16
pad10.Length = Q("0.6 in")
pad10.Reversed = True
doc.recompute()

chamfer9 = body10.newObject("PartDesign::Chamfer", "Chamfer008")
chamfer9.Base = (pad10, edges_at(pad10, [
    (-2.26, -15.334, 0),
    (-2.26, -17.462, 0),
    (2.26, -15.334, 0),
    (2.26, -17.462, 0),
]))
chamfer9.Size = Q("0.07 in")
body11 = doc.addObject("PartDesign::Body", "Body010")

sketch17 = body11.newObject("Sketcher::SketchObject", "Sketch016")
sketch17.AttachmentSupport = (doc.getObject("XY_Plane010"), [""])
sketch17.MapMode = "FlatFace"
sketch17.addGeometry([
    Part.LineSegment(App.Vector(8.398695, -14.791845, 0), App.Vector(13.0997, -13.0997, 0)),
    Part.LineSegment(App.Vector(13.0997, -13.0997, 0), App.Vector(14.791845, -8.398695, 0)),
    Part.LineSegment(App.Vector(14.791845, -8.398695, 0), App.Vector(10.090841, -10.090841, 0)),
    Part.LineSegment(App.Vector(10.090841, -10.090841, 0), App.Vector(8.398695, -14.791845, 0)),
], False)
sketch17.addConstraint([
    Sketcher.Constraint("Coincident", 0, 2, 1, 1),
    Sketcher.Constraint("Coincident", 1, 2, 2, 1),
    Sketcher.Constraint("Coincident", 2, 2, 3, 1),
    Sketcher.Constraint("Coincident", 3, 2, 0, 1),
    Sketcher.Constraint("Parallel", 0, 2),
    Sketcher.Constraint("Parallel", 1, 3),
    Sketcher.Constraint("Equal", 0, 1),
    Sketcher.Constraint("DistanceX", -1, 1, 0, 2, Q("13.0997 mm")),
    Sketcher.Constraint("DistanceY", 0, 2, -1, 1, Q("13.0997 mm")),
    Sketcher.Constraint("Distance", 0, Q("4.996279 mm")),
    Sketcher.Constraint("DistanceX", -1, 1, 2, 2, Q("10.090841 mm")),
    Sketcher.Constraint("DistanceY", 2, 2, -1, 1, Q("10.090841 mm")),
])
pad11 = body11.newObject("PartDesign::Pad", "Pad010")
pad11.Profile = sketch17
pad11.Length = Q("0.6 in")
pad11.Reversed = True
doc.recompute()

chamfer10 = body11.newObject("PartDesign::Chamfer", "Chamfer009")
chamfer10.Base = (pad11, edges_at(pad11, [
    (10.749, -13.946, 0),
    (9.245, -12.441, 0),
    (12.441, -9.245, 0),
    (13.946, -10.749, 0),
]))
chamfer10.Size = Q("0.07 in")
body12 = doc.addObject("PartDesign::Body", "Body011")

sketch18 = body12.newObject("Sketcher::SketchObject", "Sketch017")
sketch18.AttachmentSupport = (doc.getObject("XY_Plane011"), [""])
sketch18.MapMode = "FlatFace"
sketch18.addGeometry([
    Part.LineSegment(App.Vector(16.398189, -4.52064, 0), App.Vector(18.525774, 0, 0)),
    Part.LineSegment(App.Vector(18.525774, 0, 0), App.Vector(16.398189, 4.52064, 0)),
    Part.LineSegment(App.Vector(16.398189, 4.52064, 0), App.Vector(14.270604, 0, 0)),
    Part.LineSegment(App.Vector(14.270604, 0, 0), App.Vector(16.398189, -4.52064, 0)),
], False)
sketch18.addConstraint([
    Sketcher.Constraint("Coincident", 0, 2, 1, 1),
    Sketcher.Constraint("Coincident", 1, 2, 2, 1),
    Sketcher.Constraint("Coincident", 2, 2, 3, 1),
    Sketcher.Constraint("Coincident", 3, 2, 0, 1),
    Sketcher.Constraint("Symmetric", 1, 2, 3, 2, -1),
    Sketcher.Constraint("PointOnObject", 0, 2, -1),
    Sketcher.Constraint("PointOnObject", 2, 2, -1),
    Sketcher.Constraint("Parallel", 0, 2),
    Sketcher.Constraint("Distance", 0, Q("4.996279 mm")),
    Sketcher.Constraint("DistanceX", -1, 1, 1, 2, Q("16.398189 mm")),
    Sketcher.Constraint("DistanceY", -1, 1, 1, 2, Q("4.52064 mm")),
])
pad12 = body12.newObject("PartDesign::Pad", "Pad011")
pad12.Profile = sketch18
pad12.Length = Q("0.6 in")
pad12.Reversed = True
doc.recompute()

chamfer11 = body12.newObject("PartDesign::Chamfer", "Chamfer010")
chamfer11.Base = (pad12, edges_at(pad12, [
    (15.334, 2.26, 0),
    (15.334, -2.26, 0),
    (17.462, -2.26, 0),
    (17.462, 2.26, 0),
]))
chamfer11.Size = Q("0.07 in")
body13 = doc.addObject("PartDesign::Body", "Body012")

sketch19 = body13.newObject("Sketcher::SketchObject", "Sketch018")
sketch19.AttachmentSupport = (doc.getObject("XY_Plane012"), [""])
sketch19.MapMode = "FlatFace"
sketch19.addGeometry([
    Part.LineSegment(App.Vector(14.791845, 8.398695, 0), App.Vector(13.0997, 13.0997, 0)),
    Part.LineSegment(App.Vector(13.0997, 13.0997, 0), App.Vector(8.398695, 14.791845, 0)),
    Part.LineSegment(App.Vector(8.398695, 14.791845, 0), App.Vector(10.090841, 10.090841, 0)),
    Part.LineSegment(App.Vector(10.090841, 10.090841, 0), App.Vector(14.791845, 8.398695, 0)),
], False)
sketch19.addConstraint([
    Sketcher.Constraint("Coincident", 0, 2, 1, 1),
    Sketcher.Constraint("Coincident", 1, 2, 2, 1),
    Sketcher.Constraint("Coincident", 2, 2, 3, 1),
    Sketcher.Constraint("Coincident", 3, 2, 0, 1),
    Sketcher.Constraint("Parallel", 0, 2),
    Sketcher.Constraint("Parallel", 1, 3),
    Sketcher.Constraint("Equal", 0, 1),
    Sketcher.Constraint("DistanceX", -1, 1, 0, 2, Q("13.0997 mm")),
    Sketcher.Constraint("DistanceY", -1, 1, 0, 2, Q("13.0997 mm")),
    Sketcher.Constraint("Distance", 0, Q("4.996279 mm")),
    Sketcher.Constraint("DistanceX", -1, 1, 2, 2, Q("10.090841 mm")),
    Sketcher.Constraint("DistanceY", -1, 1, 2, 2, Q("10.090841 mm")),
])
pad13 = body13.newObject("PartDesign::Pad", "Pad012")
pad13.Profile = sketch19
pad13.Length = Q("0.6 in")
pad13.Reversed = True
doc.recompute()

chamfer12 = body13.newObject("PartDesign::Chamfer", "Chamfer011")
chamfer12.Base = (pad13, edges_at(pad13, [
    (13.946, 10.749, 0),
    (10.749, 13.946, 0),
    (9.245, 12.441, 0),
    (12.441, 9.245, 0),
]))
chamfer12.Size = Q("0.07 in")

doc.recompute()
